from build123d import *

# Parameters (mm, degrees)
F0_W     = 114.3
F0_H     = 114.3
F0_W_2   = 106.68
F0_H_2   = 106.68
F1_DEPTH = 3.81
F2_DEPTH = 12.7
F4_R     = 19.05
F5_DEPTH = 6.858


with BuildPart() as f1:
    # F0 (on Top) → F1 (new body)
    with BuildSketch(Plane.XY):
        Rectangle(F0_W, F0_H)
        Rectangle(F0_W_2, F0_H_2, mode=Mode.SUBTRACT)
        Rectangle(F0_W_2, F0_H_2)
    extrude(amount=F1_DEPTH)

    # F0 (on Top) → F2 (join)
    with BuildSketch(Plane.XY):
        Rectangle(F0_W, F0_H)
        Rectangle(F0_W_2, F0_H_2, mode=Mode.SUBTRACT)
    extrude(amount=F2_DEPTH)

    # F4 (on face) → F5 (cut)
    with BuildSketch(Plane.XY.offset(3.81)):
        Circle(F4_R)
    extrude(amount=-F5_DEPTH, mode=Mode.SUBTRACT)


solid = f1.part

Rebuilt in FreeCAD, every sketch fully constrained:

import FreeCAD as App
import Part
import Sketcher

V = App.Vector
Q = App.Units.Quantity

doc = App.newDocument("Part")
params = doc.addObject("Spreadsheet::Sheet", "Params")
for row, (alias, value) in enumerate([
    ("sketch1_width", "4.5 in"),
    ("pad1_length", "0.15 in"),
    ("sketch2_width", "4.5 in"),
    ("sketch2_width2", "4.2 in"),
    ("pad2_length", "0.5 in"),
    ("sketch3_diameter", "1.5 in"),
    ("pocket1_length", "0.27 in"),
], start=1):
    params.set(f"A{row}", alias)
    params.set(f"B{row}", "=" + value)
    params.setAlias(f"B{row}", alias)

body = doc.addObject("PartDesign::Body", "Body")

# Sketch on XY plane
sketch1 = body.newObject("Sketcher::SketchObject", "Sketch")
sketch1.AttachmentSupport = (doc.getObject("XY_Plane"), [""])
sketch1.MapMode = "FlatFace"
sketch1.addGeometry(Part.LineSegment(V(-57.15, 57.15, 0), V(-57.15, -57.15, 0)), False)
sketch1.addGeometry(Part.LineSegment(V(-57.15, -57.15, 0), V(57.15, -57.15, 0)), False)
sketch1.addGeometry(Part.LineSegment(V(57.15, -57.15, 0), V(57.15, 57.15, 0)), False)
sketch1.addGeometry(Part.LineSegment(V(57.15, 57.15, 0), V(-57.15, 57.15, 0)), False)
sketch1.addConstraint(Sketcher.Constraint("Coincident", 0, 2, 1, 1))
sketch1.addConstraint(Sketcher.Constraint("Coincident", 1, 2, 2, 1))
sketch1.addConstraint(Sketcher.Constraint("Coincident", 2, 2, 3, 1))
sketch1.addConstraint(Sketcher.Constraint("Coincident", 3, 2, 0, 1))
sketch1.addConstraint(Sketcher.Constraint("Vertical", 0))
sketch1.addConstraint(Sketcher.Constraint("Horizontal", 1))
sketch1.addConstraint(Sketcher.Constraint("Vertical", 2))
sketch1.addConstraint(Sketcher.Constraint("Horizontal", 3))
sketch1.addConstraint(Sketcher.Constraint("Symmetric", 0, 2, 2, 2, -1, 1))
sketch1.addConstraint(Sketcher.Constraint("Equal", 3, 0))
sketch1.addConstraint(Sketcher.Constraint("DistanceX", 1, 1, 1, 2, Q("4.5 in")))
sketch1.setExpression("Constraints[10]", "Params.sketch1_width")
pad1 = body.newObject("PartDesign::Pad", "Pad")
pad1.Profile = sketch1
pad1.setExpression("Length", "Params.pad1_length")

# Sketch on XY plane
sketch2 = body.newObject("Sketcher::SketchObject", "Sketch001")
sketch2.AttachmentSupport = (doc.getObject("XY_Plane"), [""])
sketch2.MapMode = "FlatFace"
sketch2.addGeometry(Part.LineSegment(V(-57.15, 57.15, 0), V(-57.15, -57.15, 0)), False)
sketch2.addGeometry(Part.LineSegment(V(-57.15, -57.15, 0), V(57.15, -57.15, 0)), False)
sketch2.addGeometry(Part.LineSegment(V(57.15, -57.15, 0), V(57.15, 57.15, 0)), False)
sketch2.addGeometry(Part.LineSegment(V(57.15, 57.15, 0), V(-57.15, 57.15, 0)), False)
sketch2.addGeometry(Part.LineSegment(V(53.34, -53.34, 0), V(-53.34, -53.34, 0)), False)
sketch2.addGeometry(Part.LineSegment(V(-53.34, -53.34, 0), V(-53.34, 53.34, 0)), False)
sketch2.addGeometry(Part.LineSegment(V(-53.34, 53.34, 0), V(53.34, 53.34, 0)), False)
sketch2.addGeometry(Part.LineSegment(V(53.34, 53.34, 0), V(53.34, -53.34, 0)), False)
sketch2.addConstraint(Sketcher.Constraint("Coincident", 0, 2, 1, 1))
sketch2.addConstraint(Sketcher.Constraint("Coincident", 1, 2, 2, 1))
sketch2.addConstraint(Sketcher.Constraint("Coincident", 2, 2, 3, 1))
sketch2.addConstraint(Sketcher.Constraint("Coincident", 3, 2, 0, 1))
sketch2.addConstraint(Sketcher.Constraint("Coincident", 4, 2, 5, 1))
sketch2.addConstraint(Sketcher.Constraint("Coincident", 5, 2, 6, 1))
sketch2.addConstraint(Sketcher.Constraint("Coincident", 6, 2, 7, 1))
sketch2.addConstraint(Sketcher.Constraint("Coincident", 7, 2, 4, 1))
sketch2.addConstraint(Sketcher.Constraint("Vertical", 0))
sketch2.addConstraint(Sketcher.Constraint("Horizontal", 1))
sketch2.addConstraint(Sketcher.Constraint("Vertical", 2))
sketch2.addConstraint(Sketcher.Constraint("Horizontal", 3))
sketch2.addConstraint(Sketcher.Constraint("Horizontal", 4))
sketch2.addConstraint(Sketcher.Constraint("Vertical", 5))
sketch2.addConstraint(Sketcher.Constraint("Horizontal", 6))
sketch2.addConstraint(Sketcher.Constraint("Vertical", 7))
sketch2.addConstraint(Sketcher.Constraint("Symmetric", 0, 2, 2, 2, -1, 1))
sketch2.addConstraint(Sketcher.Constraint("Symmetric", 4, 2, 6, 2, -1, 1))
sketch2.addConstraint(Sketcher.Constraint("Equal", 3, 0))
sketch2.addConstraint(Sketcher.Constraint("Equal", 6, 5))
sketch2.addConstraint(Sketcher.Constraint("DistanceX", 1, 1, 1, 2, Q("4.5 in")))
sketch2.addConstraint(Sketcher.Constraint("DistanceX", 4, 2, 4, 1, Q("4.2 in")))
sketch2.setExpression("Constraints[20]", "Params.sketch2_width")
sketch2.setExpression("Constraints[21]", "Params.sketch2_width2")
pad2 = body.newObject("PartDesign::Pad", "Pad001")
pad2.Profile = sketch2
pad2.setExpression("Length", "Params.pad2_length")

# Sketch on XY plane
sketch3 = body.newObject("Sketcher::SketchObject", "Sketch002")
sketch3.AttachmentSupport = (doc.getObject("XY_Plane"), [""])
sketch3.MapMode = "FlatFace"
sketch3.AttachmentOffset = App.Placement(V(0, 0, 0.15 * 25.4), App.Rotation())
sketch3.addGeometry(Part.Circle(V(0, 0, 0), V(0, 0, 1), 19.05), False)
sketch3.addConstraint(Sketcher.Constraint("Coincident", 0, 3, -1, 1))
sketch3.addConstraint(Sketcher.Constraint("Diameter", 0, Q("1.5 in")))
sketch3.setExpression("Constraints[1]", "Params.sketch3_diameter")
pocket1 = body.newObject("PartDesign::Pocket", "Pocket")
pocket1.Profile = sketch3
pocket1.setExpression("Length", "Params.pocket1_length")

doc.recompute()
